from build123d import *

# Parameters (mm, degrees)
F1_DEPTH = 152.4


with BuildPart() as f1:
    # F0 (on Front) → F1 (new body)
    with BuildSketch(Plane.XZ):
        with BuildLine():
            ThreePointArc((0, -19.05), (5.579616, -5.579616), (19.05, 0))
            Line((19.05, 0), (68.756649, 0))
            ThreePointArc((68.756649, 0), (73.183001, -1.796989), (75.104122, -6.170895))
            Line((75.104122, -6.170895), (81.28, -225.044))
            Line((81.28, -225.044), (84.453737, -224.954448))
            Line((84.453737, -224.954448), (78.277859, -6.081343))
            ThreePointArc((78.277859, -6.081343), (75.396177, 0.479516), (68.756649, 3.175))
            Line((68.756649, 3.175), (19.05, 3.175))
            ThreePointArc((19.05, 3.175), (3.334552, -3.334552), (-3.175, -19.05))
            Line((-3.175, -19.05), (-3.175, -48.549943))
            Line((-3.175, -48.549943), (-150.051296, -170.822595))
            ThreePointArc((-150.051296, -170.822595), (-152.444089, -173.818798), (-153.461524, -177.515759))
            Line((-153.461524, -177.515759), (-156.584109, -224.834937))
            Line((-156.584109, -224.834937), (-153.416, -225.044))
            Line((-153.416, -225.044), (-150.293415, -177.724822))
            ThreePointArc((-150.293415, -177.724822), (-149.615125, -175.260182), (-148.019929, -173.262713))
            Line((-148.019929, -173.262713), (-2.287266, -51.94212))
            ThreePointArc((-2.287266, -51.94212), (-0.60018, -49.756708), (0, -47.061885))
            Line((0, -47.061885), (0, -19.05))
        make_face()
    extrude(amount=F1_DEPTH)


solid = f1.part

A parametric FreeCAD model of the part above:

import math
import FreeCAD as App
import Part
import Sketcher
Q = App.Units.Quantity

doc = App.newDocument("Part")
body = doc.addObject("PartDesign::Body", "Body")

sketch1 = doc.addObject("Sketcher::SketchObject", "Sketch")
body.addObject(sketch1)
sketch1.AttachmentSupport = (doc.XZ_Plane, [""])
sketch1.MapMode = "FlatFace"
sketch1.addGeometry(Part.ArcOfCircle(Part.Circle(App.Vector(19.050001, -19.050001, 0), App.Vector(0, 0, 1), 19.050001), math.radians(90.000002), math.radians(179.999998)), False)
sketch1.addGeometry(Part.LineSegment(App.Vector(19.05, 0, 0), App.Vector(68.756649, 0, 0)), False)
sketch1.addGeometry(Part.ArcOfCircle(Part.Circle(App.Vector(68.75665, -6.349999, 0), App.Vector(0, 0, 1), 6.349999), math.radians(1.616259), math.radians(90.000006)), False)
sketch1.addGeometry(Part.LineSegment(App.Vector(75.104122, -6.170895, 0), App.Vector(81.28, -225.044, 0)), False)
sketch1.addGeometry(Part.LineSegment(App.Vector(81.28, -225.044, 0), App.Vector(84.453737, -224.954448, 0)), False)
sketch1.addGeometry(Part.LineSegment(App.Vector(84.453737, -224.954448, 0), App.Vector(78.277859, -6.081343, 0)), False)
sketch1.addGeometry(Part.ArcOfCircle(Part.Circle(App.Vector(68.756649, -6.35, 0), App.Vector(0, 0, 1), 9.525), math.radians(1.616267), math.radians(89.999999)), False)
sketch1.addGeometry(Part.LineSegment(App.Vector(68.756649, 3.175, 0), App.Vector(19.05, 3.175, 0)), False)
sketch1.addGeometry(Part.ArcOfCircle(Part.Circle(App.Vector(19.050001, -19.050001, 0), App.Vector(0, 0, 1), 22.225001), math.radians(90.000002), math.radians(179.999998)), False)
sketch1.addGeometry(Part.LineSegment(App.Vector(-3.175, -19.05, 0), App.Vector(-3.175, -48.549943, 0)), False)
sketch1.addGeometry(Part.LineSegment(App.Vector(-3.175, -48.549943, 0), App.Vector(-150.051296, -170.822595, 0)), False)
sketch1.addGeometry(Part.ArcOfCircle(Part.Circle(App.Vector(-143.957199, -178.142946, 0), App.Vector(0, 0, 1), 9.524996), math.radians(129.77694), math.radians(176.224547)), False)
sketch1.addGeometry(Part.LineSegment(App.Vector(-153.461524, -177.515759, 0), App.Vector(-156.584109, -224.834937, 0)), False)
sketch1.addGeometry(Part.LineSegment(App.Vector(-156.584109, -224.834937, 0), App.Vector(-153.416, -225.044, 0)), False)
sketch1.addGeometry(Part.LineSegment(App.Vector(-153.416, -225.044, 0), App.Vector(-150.293415, -177.724822, 0)), False)
sketch1.addGeometry(Part.ArcOfCircle(Part.Circle(App.Vector(-143.957199, -178.142947, 0), App.Vector(0, 0, 1), 6.349997), math.radians(129.776928), math.radians(176.224541)), False)
sketch1.addGeometry(Part.LineSegment(App.Vector(-148.019929, -173.262713, 0), App.Vector(-2.287266, -51.94212, 0)), False)
sketch1.addGeometry(Part.ArcOfCircle(Part.Circle(App.Vector(-6.35, -47.061885, 0), App.Vector(0, 0, 1), 6.35), math.radians(-50.223047), math.radians(0.000002)), False)
sketch1.addGeometry(Part.LineSegment(App.Vector(0, -47.061885, 0), App.Vector(0, -19.05, 0)), False)
sketch1.addConstraint(Sketcher.Constraint("Coincident", 0, 1, 1, 1))
sketch1.addConstraint(Sketcher.Constraint("Coincident", 1, 2, 2, 2))
sketch1.addConstraint(Sketcher.Constraint("Coincident", 2, 1, 3, 1))
sketch1.addConstraint(Sketcher.Constraint("Coincident", 3, 2, 4, 1))
sketch1.addConstraint(Sketcher.Constraint("Coincident", 4, 2, 5, 1))
sketch1.addConstraint(Sketcher.Constraint("Coincident", 5, 2, 6, 1))
sketch1.addConstraint(Sketcher.Constraint("Coincident", 6, 2, 7, 1))
sketch1.addConstraint(Sketcher.Constraint("Coincident", 7, 2, 8, 1))
sketch1.addConstraint(Sketcher.Constraint("Coincident", 8, 2, 9, 1))
sketch1.addConstraint(Sketcher.Constraint("Coincident", 9, 2, 10, 1))
sketch1.addConstraint(Sketcher.Constraint("Coincident", 10, 2, 11, 1))
sketch1.addConstraint(Sketcher.Constraint("Coincident", 11, 2, 12, 1))
sketch1.addConstraint(Sketcher.Constraint("Coincident", 12, 2, 13, 1))
sketch1.addConstraint(Sketcher.Constraint("Coincident", 13, 2, 14, 1))
sketch1.addConstraint(Sketcher.Constraint("Coincident", 14, 2, 15, 2))
sketch1.addConstraint(Sketcher.Constraint("Coincident", 15, 1, 16, 1))
sketch1.addConstraint(Sketcher.Constraint("Coincident", 16, 2, 17, 1))
sketch1.addConstraint(Sketcher.Constraint("Coincident", 17, 2, 18, 1))
sketch1.addConstraint(Sketcher.Constraint("Coincident", 18, 2, 0, 2))
sketch1.addConstraint(Sketcher.Constraint("Horizontal", 1))
sketch1.addConstraint(Sketcher.Constraint("Horizontal", 7))
sketch1.addConstraint(Sketcher.Constraint("Vertical", 9))
sketch1.addConstraint(Sketcher.Constraint("Vertical", 18))
sketch1.addConstraint(Sketcher.Constraint("Coincident", 6, 3, 2, 3))
sketch1.addConstraint(Sketcher.Constraint("Coincident", 8, 3, 0, 3))
sketch1.addConstraint(Sketcher.Constraint("Coincident", 15, 3, 11, 3))
sketch1.addConstraint(Sketcher.Constraint("PointOnObject", 0, 1, -1))
sketch1.addConstraint(Sketcher.Constraint("PointOnObject", 17, 2, -2))
sketch1.addConstraint(Sketcher.Constraint("Radius", 0, Q("0.75 in")))
sketch1.addConstraint(Sketcher.Constraint("Radius", 2, Q("0.2499999 in")))
sketch1.addConstraint(Sketcher.Constraint("Radius", 15, Q("0.2499999 in")))
sketch1.addConstraint(Sketcher.Constraint("Radius", 17, Q("0.25 in")))
sketch1.addConstraint(Sketcher.Constraint("Radius", 6, Q("0.375 in")))
sketch1.addConstraint(Sketcher.Constraint("Radius", 11, Q("0.3749998 in")))
sketch1.addConstraint(Sketcher.Constraint("DistanceX", 17, 3, 0, 1, Q("1 in")))
sketch1.addConstraint(Sketcher.Constraint("DistanceX", -1, 1, 3, 2, Q("3.2 in")))
sketch1.addConstraint(Sketcher.Constraint("DistanceY", 3, 2, -1, 1, Q("8.86 in")))
sketch1.addConstraint(Sketcher.Constraint("DistanceX", -1, 1, 7, 2, Q("0.75 in")))
sketch1.addConstraint(Sketcher.Constraint("DistanceY", 8, 2, -1, 1, Q("0.75 in")))
sketch1.addConstraint(Sketcher.Constraint("DistanceX", 13, 2, -1, 1, Q("6.04 in")))
sketch1.addConstraint(Sketcher.Constraint("DistanceY", 13, 2, -1, 1, Q("8.86 in")))
sketch1.addConstraint(Sketcher.Constraint("DistanceY", 18, 2, -1, 1, Q("0.75 in")))
sketch1.addConstraint(Sketcher.Constraint("Distance", 4, Q("0.125 in")))
sketch1.addConstraint(Sketcher.Constraint("Distance", 13, Q("0.125 in")))
sketch1.addConstraint(Sketcher.Constraint("DistanceX", 1, 1, 1, 2, Q("49.706649 mm")))
sketch1.addConstraint(Sketcher.Constraint("DistanceX", 7, 2, 7, 1, Q("49.706649 mm")))
sketch1.addConstraint(Sketcher.Constraint("DistanceX", 11, 3, -1, 1, Q("143.957199 mm")))
sketch1.addConstraint(Sketcher.Constraint("Distance", 3, Q("218.960219 mm")))
sketch1.addConstraint(Sketcher.Constraint("Distance", 5, Q("218.960219 mm")))
sketch1.addConstraint(Sketcher.Constraint("DistanceY", 9, 2, 9, 1, Q("29.499943 mm")))
sketch1.addConstraint(Sketcher.Constraint("DistanceY", 18, 1, 18, 2, Q("28.011885 mm")))
sketch1.addConstraint(Sketcher.Constraint("DistanceX", -1, 1, 2, 3, Q("68.75665 mm")))
sketch1.addConstraint(Sketcher.Constraint("DistanceY", 4, 2, -1, 1, Q("224.954448 mm")))
sketch1.addConstraint(Sketcher.Constraint("DistanceY", 11, 2, -1, 1, Q("177.515759 mm")))
sketch1.addConstraint(Sketcher.Constraint("DistanceX", 12, 2, -1, 1, Q("156.584109 mm")))
sketch1.addConstraint(Sketcher.Constraint("DistanceY", 14, 2, -1, 1, Q("177.724822 mm")))
sketch1.addConstraint(Sketcher.Constraint("DistanceX", 15, 1, -1, 1, Q("148.019929 mm")))
sketch1.addConstraint(Sketcher.Constraint("DistanceY", 16, 2, -1, 1, Q("51.94212 mm")))
sketch1.addConstraint(Sketcher.Constraint("DistanceY", 15, 3, 2, 3, Q("171.792948 mm")))
sketch1.addConstraint(Sketcher.Constraint("DistanceY", 11, 3, 17, 3, Q("131.081061 mm")))
sketch1.addConstraint(Sketcher.Constraint("DistanceY", 11, 3, 10, 2, Q("7.320351 mm")))
pad1 = doc.addObject("PartDesign::Pad", "Pad")
body.addObject(pad1)
pad1.Profile = sketch1
pad1.Length = Q("6 in")

doc.recompute()
